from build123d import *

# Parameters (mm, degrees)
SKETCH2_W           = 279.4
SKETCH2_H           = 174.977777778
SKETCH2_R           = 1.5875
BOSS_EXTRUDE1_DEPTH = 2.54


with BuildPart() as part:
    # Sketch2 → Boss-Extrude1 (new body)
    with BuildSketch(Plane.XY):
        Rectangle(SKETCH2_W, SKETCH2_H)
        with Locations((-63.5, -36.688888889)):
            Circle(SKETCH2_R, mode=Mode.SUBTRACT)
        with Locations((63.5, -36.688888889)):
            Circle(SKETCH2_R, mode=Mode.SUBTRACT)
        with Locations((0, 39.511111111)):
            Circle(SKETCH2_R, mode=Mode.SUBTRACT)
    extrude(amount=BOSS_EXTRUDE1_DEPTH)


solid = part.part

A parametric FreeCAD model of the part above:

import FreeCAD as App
import Part
import Sketcher
Q = App.Units.Quantity

doc = App.newDocument("Part")
params = doc.addObject("Spreadsheet::Sheet", "Params")
for row, (alias, value) in enumerate([
    ("sketch1_width", "11 in"),
    ("sketch1_diameter", "0.125 in"),
    ("pad1_length", "0.1 in"),
], start=1):
    params.set(f"A{row}", alias)
    params.set(f"B{row}", "=" + value)
    params.setAlias(f"B{row}", alias)

body = doc.addObject("PartDesign::Body", "Body")

sketch1 = body.newObject("Sketcher::SketchObject", "Sketch")
sketch1.AttachmentSupport = (doc.getObject("XY_Plane"), [""])
sketch1.MapMode = "FlatFace"
sketch1.addGeometry(Part.LineSegment(App.Vector(-139.7, 87.5, 0), App.Vector(-139.7, -87.5, 0)), False)
sketch1.addGeometry(Part.LineSegment(App.Vector(-139.7, -87.5, 0), App.Vector(139.7, -87.5, 0)), False)
sketch1.addGeometry(Part.LineSegment(App.Vector(139.7, -87.5, 0), App.Vector(139.7, 87.5, 0)), False)
sketch1.addGeometry(Part.LineSegment(App.Vector(139.7, 87.5, 0), App.Vector(-139.7, 87.5, 0)), False)
sketch1.addGeometry(Part.Circle(App.Vector(-63.5, -36.7, 0), App.Vector(0, 0, 1), 1.6), False)
sketch1.addGeometry(Part.Circle(App.Vector(63.5, -36.7, 0), App.Vector(0, 0, 1), 1.6), False)
sketch1.addGeometry(Part.Circle(App.Vector(0, 39.5, 0), App.Vector(0, 0, 1), 1.6), False)
sketch1.addConstraint(Sketcher.Constraint("Coincident", 0, 2, 1, 1))
sketch1.addConstraint(Sketcher.Constraint("Coincident", 1, 2, 2, 1))
sketch1.addConstraint(Sketcher.Constraint("Coincident", 2, 2, 3, 1))
sketch1.addConstraint(Sketcher.Constraint("Coincident", 3, 2, 0, 1))
sketch1.addConstraint(Sketcher.Constraint("Vertical", 0))
sketch1.addConstraint(Sketcher.Constraint("Horizontal", 1))
sketch1.addConstraint(Sketcher.Constraint("Vertical", 2))
sketch1.addConstraint(Sketcher.Constraint("Horizontal", 3))
sketch1.addConstraint(Sketcher.Constraint("Equal", 4, 5))
sketch1.addConstraint(Sketcher.Constraint("Equal", 5, 6))
sketch1.addConstraint(Sketcher.Constraint("Symmetric", 0, 2, 2, 2, -1, 1))
sketch1.addConstraint(Sketcher.Constraint("Symmetric", 4, 3, 5, 3, -2))
sketch1.addConstraint(Sketcher.Constraint("PointOnObject", 6, 3, -2))
sketch1.addConstraint(Sketcher.Constraint("DistanceX", 1, 1, 1, 2, Q("11 in")))
sketch1.addConstraint(Sketcher.Constraint("Diameter", 4, Q("0.125 in")))
sketch1.addConstraint(Sketcher.Constraint("DistanceX", 4, 3, 5, 3, Q("5 in")))
sketch1.addConstraint(Sketcher.Constraint("DistanceY", 4, 3, 6, 3, Q("3 in")))
sketch1.addConstraint(Sketcher.Constraint("DistanceY", 0, 2, 4, 3, Q("2 in")))
sketch1.addConstraint(Sketcher.Constraint("DistanceY", 0, 2, 0, 1, 174.977778))
sketch1.setExpression("Constraints[13]", "Params.sketch1_width")
sketch1.setExpression("Constraints[14]", "Params.sketch1_diameter")
pad1 = body.newObject("PartDesign::Pad", "Pad")
pad1.Profile = sketch1
pad1.setExpression("Length", "Params.pad1_length")

doc.recompute()
